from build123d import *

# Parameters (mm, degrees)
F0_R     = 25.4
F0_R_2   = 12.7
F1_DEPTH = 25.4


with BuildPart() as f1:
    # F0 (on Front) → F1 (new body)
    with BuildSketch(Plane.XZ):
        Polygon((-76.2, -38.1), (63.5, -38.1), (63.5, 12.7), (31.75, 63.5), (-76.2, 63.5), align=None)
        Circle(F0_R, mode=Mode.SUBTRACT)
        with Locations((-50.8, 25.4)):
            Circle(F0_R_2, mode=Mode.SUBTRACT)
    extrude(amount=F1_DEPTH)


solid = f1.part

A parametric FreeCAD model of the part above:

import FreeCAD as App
import Part
import Sketcher
from FreeCAD import Vector
Q = App.Units.Quantity

doc = App.newDocument("Part")
params = doc.addObject("Spreadsheet::Sheet", "Params")
for row, (alias, value) in enumerate([
    ("sketch1_diameter", "2 in"),
    ("sketch1_diameter2", "1 in"),
    ("sketch1_height", "2 in"),
    ("sketch1_height2", "4 in"),
    ("sketch1_width", "5.5 in"),
    ("pad1_length", "1 in"),
], start=1):
    params.set(f"A{row}", alias)
    params.set(f"B{row}", "=" + value)
    params.setAlias(f"B{row}", alias)

body = doc.addObject("PartDesign::Body", "Body")

# Sketch on XZ plane
sketch1 = body.newObject("Sketcher::SketchObject", "Sketch")
sketch1.AttachmentSupport = (doc.getObject("XZ_Plane"), [""])
sketch1.MapMode = "FlatFace"
sketch1.addGeometry([
    Part.LineSegment(Vector(-76, -38, 0), Vector(64, -38, 0)),  # 0
    Part.LineSegment(Vector(64, -38, 0), Vector(64, 13, 0)),  # 1
    Part.LineSegment(Vector(64, 13, 0), Vector(32, 64, 0)),  # 2
    Part.LineSegment(Vector(32, 64, 0), Vector(-76, 64, 0)),  # 3
    Part.LineSegment(Vector(-76, 64, 0), Vector(-76, -38, 0)),  # 4
    Part.Circle(Vector(0, 0, 0), Vector(0, 0, 1), 25),  # 5
    Part.Circle(Vector(-51, 25, 0), Vector(0, 0, 1), 13),  # 6
], False)
sketch1.addConstraint([
    Sketcher.Constraint("Coincident", 0, 2, 1, 1),
    Sketcher.Constraint("Coincident", 1, 2, 2, 1),
    Sketcher.Constraint("Coincident", 2, 2, 3, 1),
    Sketcher.Constraint("Coincident", 3, 2, 4, 1),
    Sketcher.Constraint("Coincident", 4, 2, 0, 1),
    Sketcher.Constraint("Horizontal", 0),
    Sketcher.Constraint("Vertical", 1),
    Sketcher.Constraint("Horizontal", 3),
    Sketcher.Constraint("Vertical", 4),
    Sketcher.Constraint("Coincident", 5, 3, -1, 1),
    Sketcher.Constraint("Diameter", 5, Q("2 in")),
    Sketcher.Constraint("Diameter", 6, Q("1 in")),
    Sketcher.Constraint("DistanceY", 1, 1, 1, 2, Q("2 in")),
    Sketcher.Constraint("DistanceY", 4, 2, 4, 1, Q("4 in")),
    Sketcher.Constraint("DistanceX", 0, 1, 0, 2, Q("5.5 in")),
    Sketcher.Constraint("DistanceX", 6, 3, -1, 1, Q("2 in")),
    Sketcher.Constraint("DistanceY", -1, 1, 6, 3, Q("1 in")),
    Sketcher.Constraint("DistanceX", 3, 2, -1, 1, Q("3 in")),
    Sketcher.Constraint("DistanceX", 3, 2, 3, 1, Q("4.25 in")),
    Sketcher.Constraint("DistanceY", 0, 2, -1, 1, Q("1.5 in")),
])
sketch1.setExpression("Constraints[10]", "Params.sketch1_diameter")
sketch1.setExpression("Constraints[11]", "Params.sketch1_diameter2")
sketch1.setExpression("Constraints[12]", "Params.sketch1_height")
sketch1.setExpression("Constraints[13]", "Params.sketch1_height2")
sketch1.setExpression("Constraints[14]", "Params.sketch1_width")
pad1 = body.newObject("PartDesign::Pad", "Pad")
pad1.Profile = sketch1
pad1.setExpression("Length", "Params.pad1_length")

doc.recompute()
